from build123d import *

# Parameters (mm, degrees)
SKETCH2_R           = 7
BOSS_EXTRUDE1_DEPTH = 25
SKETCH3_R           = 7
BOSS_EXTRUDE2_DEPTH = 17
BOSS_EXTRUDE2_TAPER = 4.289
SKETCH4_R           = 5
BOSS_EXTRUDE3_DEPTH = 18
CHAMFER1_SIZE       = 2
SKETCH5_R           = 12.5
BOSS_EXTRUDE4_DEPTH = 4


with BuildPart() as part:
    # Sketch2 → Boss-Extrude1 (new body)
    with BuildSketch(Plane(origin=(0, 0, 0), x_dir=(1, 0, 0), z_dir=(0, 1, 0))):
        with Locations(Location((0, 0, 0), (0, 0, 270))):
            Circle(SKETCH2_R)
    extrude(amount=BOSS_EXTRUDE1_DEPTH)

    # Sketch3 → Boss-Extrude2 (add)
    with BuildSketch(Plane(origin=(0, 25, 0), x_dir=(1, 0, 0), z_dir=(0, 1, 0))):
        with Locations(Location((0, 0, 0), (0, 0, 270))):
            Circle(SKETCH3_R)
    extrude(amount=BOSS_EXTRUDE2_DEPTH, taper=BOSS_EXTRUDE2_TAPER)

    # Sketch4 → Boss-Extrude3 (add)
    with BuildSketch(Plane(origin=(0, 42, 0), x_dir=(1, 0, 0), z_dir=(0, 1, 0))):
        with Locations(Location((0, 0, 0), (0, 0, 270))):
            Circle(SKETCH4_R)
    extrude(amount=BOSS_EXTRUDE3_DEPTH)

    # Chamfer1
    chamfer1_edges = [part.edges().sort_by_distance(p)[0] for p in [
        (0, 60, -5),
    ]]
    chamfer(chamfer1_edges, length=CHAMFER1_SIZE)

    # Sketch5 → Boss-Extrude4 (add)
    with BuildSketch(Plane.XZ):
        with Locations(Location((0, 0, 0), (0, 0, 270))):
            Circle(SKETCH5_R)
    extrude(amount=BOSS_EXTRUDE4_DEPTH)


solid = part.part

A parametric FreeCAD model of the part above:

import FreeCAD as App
import Part
import Sketcher
from FreeCAD import Vector
Q = App.Units.Quantity


def edges_at(feature, points):
    """Names of the edges that pass closest to the given points."""
    edges = feature.Shape.Edges
    near = lambda p: min(range(len(edges)), key=lambda i: edges[i].distToShape(Part.Vertex(*p))[0])
    return sorted({f"Edge{near(p) + 1}" for p in points})

doc = App.newDocument("Part")
body = doc.addObject("PartDesign::Body", "Body")

# Sketch on XZ plane
sketch1 = body.newObject("Sketcher::SketchObject", "Sketch")
sketch1.AttachmentSupport = (doc.getObject("XZ_Plane"), [""])
sketch1.MapMode = "FlatFace"
sketch1.addGeometry(Part.Circle(Vector(0, 0, 0), Vector(0, 0, 1), 7), False)
sketch1.addConstraint([
    Sketcher.Constraint("Coincident", 0, 3, -1, 1),
    Sketcher.Constraint("Diameter", 0, Q("14 mm")),
])
pad1 = body.newObject("PartDesign::Pad", "Pad")
pad1.Profile = sketch1
pad1.Length = 25
pad1.Reversed = True

# Sketch on XZ plane
sketch2 = body.newObject("Sketcher::SketchObject", "Sketch001")
sketch2.AttachmentSupport = (doc.getObject("XZ_Plane"), [""])
sketch2.MapMode = "FlatFace"
sketch2.AttachmentOffset = App.Placement(Vector(0, 0, -25), App.Rotation())
sketch2.addGeometry(Part.Circle(Vector(0, 0, 0), Vector(0, 0, 1), 7), False)
sketch2.addConstraint([
    Sketcher.Constraint("Coincident", 0, 3, -1, 1),
    Sketcher.Constraint("Diameter", 0, Q("14 mm")),
])
pad2 = body.newObject("PartDesign::Pad", "Pad001")
pad2.Profile = sketch2
pad2.Length = 17
pad2.Reversed = True
pad2.TaperAngle = -4.289

# Sketch on XZ plane
sketch3 = body.newObject("Sketcher::SketchObject", "Sketch002")
sketch3.AttachmentSupport = (doc.getObject("XZ_Plane"), [""])
sketch3.MapMode = "FlatFace"
sketch3.AttachmentOffset = App.Placement(Vector(0, 0, -42), App.Rotation())
sketch3.addGeometry(Part.Circle(Vector(0, 0, 0), Vector(0, 0, 1), 5), False)
sketch3.addConstraint([
    Sketcher.Constraint("Coincident", 0, 3, -1, 1),
    Sketcher.Constraint("Diameter", 0, Q("10 mm")),
])
pad3 = body.newObject("PartDesign::Pad", "Pad002")
pad3.Profile = sketch3
pad3.Length = 18
pad3.Reversed = True
doc.recompute()

chamfer = body.newObject("PartDesign::Chamfer", "Chamfer")
chamfer.Base = (pad3, edges_at(pad3, [(0, 60, -5)]))
chamfer.Size = 2

# Sketch on XZ plane
sketch4 = body.newObject("Sketcher::SketchObject", "Sketch003")
sketch4.AttachmentSupport = (doc.getObject("XZ_Plane"), [""])
sketch4.MapMode = "FlatFace"
sketch4.addGeometry(Part.Circle(Vector(0, 0, 0), Vector(0, 0, 1), 12), False)
sketch4.addConstraint([
    Sketcher.Constraint("Coincident", 0, 3, -1, 1),
    Sketcher.Constraint("Diameter", 0, Q("25 mm")),
])
pad4 = body.newObject("PartDesign::Pad", "Pad003")
pad4.Profile = sketch4
pad4.Length = 4

doc.recompute()
